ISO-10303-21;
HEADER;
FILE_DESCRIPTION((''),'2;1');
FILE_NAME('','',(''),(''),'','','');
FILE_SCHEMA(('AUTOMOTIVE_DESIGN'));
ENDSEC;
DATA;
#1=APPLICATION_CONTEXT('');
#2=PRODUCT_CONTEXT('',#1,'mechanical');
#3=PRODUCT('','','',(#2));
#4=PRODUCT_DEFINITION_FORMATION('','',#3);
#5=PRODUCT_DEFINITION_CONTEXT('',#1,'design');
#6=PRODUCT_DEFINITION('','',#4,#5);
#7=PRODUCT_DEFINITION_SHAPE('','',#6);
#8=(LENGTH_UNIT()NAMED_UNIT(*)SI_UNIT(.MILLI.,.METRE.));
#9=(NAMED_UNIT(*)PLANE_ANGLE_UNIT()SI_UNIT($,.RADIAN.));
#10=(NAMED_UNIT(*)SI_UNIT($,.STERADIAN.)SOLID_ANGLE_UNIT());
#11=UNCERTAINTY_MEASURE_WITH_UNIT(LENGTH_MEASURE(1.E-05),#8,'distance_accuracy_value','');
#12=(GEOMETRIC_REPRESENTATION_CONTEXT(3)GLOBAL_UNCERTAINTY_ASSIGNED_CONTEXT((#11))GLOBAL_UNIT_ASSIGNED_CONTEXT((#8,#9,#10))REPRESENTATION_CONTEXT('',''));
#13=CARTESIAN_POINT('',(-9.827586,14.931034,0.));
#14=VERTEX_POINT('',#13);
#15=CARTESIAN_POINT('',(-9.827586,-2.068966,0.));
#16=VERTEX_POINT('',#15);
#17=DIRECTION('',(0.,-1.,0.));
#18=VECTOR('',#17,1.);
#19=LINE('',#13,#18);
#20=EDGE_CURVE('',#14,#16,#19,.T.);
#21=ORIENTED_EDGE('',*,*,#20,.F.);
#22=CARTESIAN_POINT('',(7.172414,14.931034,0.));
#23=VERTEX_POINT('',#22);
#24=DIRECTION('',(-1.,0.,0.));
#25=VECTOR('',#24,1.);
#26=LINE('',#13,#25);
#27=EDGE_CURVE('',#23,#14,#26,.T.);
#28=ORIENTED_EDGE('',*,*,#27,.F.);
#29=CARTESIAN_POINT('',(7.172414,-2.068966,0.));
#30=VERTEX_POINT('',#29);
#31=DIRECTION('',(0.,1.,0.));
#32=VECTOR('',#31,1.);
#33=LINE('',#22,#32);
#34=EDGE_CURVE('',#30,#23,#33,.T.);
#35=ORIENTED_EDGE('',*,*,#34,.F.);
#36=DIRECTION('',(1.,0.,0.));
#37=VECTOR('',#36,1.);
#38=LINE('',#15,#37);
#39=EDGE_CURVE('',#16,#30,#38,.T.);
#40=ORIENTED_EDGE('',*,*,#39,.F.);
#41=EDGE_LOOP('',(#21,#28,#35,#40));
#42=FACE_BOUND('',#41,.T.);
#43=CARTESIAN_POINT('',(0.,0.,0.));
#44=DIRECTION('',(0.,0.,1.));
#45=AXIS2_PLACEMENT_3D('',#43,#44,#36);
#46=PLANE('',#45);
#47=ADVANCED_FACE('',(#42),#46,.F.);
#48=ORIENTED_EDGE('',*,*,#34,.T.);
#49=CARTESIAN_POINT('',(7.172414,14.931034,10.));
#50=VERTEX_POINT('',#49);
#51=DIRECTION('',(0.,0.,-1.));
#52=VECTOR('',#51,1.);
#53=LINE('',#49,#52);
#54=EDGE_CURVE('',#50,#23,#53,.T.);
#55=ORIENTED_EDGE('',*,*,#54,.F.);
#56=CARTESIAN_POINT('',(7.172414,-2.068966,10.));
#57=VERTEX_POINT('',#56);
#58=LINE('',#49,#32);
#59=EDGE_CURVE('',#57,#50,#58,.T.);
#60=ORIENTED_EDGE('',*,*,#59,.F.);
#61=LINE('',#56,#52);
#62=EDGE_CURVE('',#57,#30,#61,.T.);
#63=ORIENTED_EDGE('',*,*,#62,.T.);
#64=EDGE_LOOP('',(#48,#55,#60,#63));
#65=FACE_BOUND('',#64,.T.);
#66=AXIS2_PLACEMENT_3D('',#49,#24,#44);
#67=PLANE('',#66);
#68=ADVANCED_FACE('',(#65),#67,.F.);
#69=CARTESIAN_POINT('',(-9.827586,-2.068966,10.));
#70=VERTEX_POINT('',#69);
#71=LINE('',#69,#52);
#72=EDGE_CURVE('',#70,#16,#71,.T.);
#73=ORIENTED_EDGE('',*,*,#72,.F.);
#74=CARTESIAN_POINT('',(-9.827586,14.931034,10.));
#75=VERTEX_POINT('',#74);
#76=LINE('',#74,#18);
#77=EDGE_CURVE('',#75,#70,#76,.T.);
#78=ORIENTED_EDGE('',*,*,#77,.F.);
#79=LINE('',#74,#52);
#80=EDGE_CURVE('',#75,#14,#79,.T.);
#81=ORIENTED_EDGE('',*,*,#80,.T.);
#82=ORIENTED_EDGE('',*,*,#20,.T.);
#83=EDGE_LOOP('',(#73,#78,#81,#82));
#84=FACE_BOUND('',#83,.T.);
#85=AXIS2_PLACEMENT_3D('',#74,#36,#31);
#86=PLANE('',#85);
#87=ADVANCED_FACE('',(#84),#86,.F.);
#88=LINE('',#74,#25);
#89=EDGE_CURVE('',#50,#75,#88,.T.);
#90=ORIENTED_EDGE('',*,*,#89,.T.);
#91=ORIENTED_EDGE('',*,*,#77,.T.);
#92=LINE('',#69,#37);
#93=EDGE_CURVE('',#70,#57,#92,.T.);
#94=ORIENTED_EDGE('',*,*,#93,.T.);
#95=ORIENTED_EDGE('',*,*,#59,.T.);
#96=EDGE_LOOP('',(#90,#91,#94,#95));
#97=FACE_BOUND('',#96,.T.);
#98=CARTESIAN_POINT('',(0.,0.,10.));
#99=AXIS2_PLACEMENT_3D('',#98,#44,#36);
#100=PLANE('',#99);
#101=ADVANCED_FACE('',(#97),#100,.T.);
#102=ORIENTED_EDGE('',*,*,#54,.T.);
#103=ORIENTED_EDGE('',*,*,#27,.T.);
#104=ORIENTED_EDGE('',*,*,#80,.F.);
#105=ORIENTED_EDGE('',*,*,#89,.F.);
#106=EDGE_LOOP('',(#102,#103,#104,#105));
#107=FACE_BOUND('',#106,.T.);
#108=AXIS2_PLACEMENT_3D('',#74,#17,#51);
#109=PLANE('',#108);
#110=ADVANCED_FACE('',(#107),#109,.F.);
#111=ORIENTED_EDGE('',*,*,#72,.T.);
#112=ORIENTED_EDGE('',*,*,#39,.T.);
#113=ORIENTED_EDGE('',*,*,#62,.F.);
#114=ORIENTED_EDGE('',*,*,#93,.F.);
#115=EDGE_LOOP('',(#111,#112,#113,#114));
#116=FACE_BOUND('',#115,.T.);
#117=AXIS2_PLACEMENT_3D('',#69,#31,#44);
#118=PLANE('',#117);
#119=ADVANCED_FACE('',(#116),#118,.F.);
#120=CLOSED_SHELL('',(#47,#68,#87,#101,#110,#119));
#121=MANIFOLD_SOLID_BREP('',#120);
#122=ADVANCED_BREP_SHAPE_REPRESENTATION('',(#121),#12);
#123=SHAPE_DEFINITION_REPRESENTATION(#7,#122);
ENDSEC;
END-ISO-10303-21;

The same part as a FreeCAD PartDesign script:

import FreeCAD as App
import Part
import Sketcher

V = App.Vector
Q = App.Units.Quantity

doc = App.newDocument("Part")
body = doc.addObject("PartDesign::Body", "Body")

# Sketch on XY plane
sketch1 = body.newObject("Sketcher::SketchObject", "Sketch")
sketch1.AttachmentSupport = (doc.getObject("XY_Plane"), [""])
sketch1.MapMode = "FlatFace"
sketch1.addGeometry(Part.LineSegment(V(-10, 15, 0), V(-10, -2, 0)), False)
sketch1.addGeometry(Part.LineSegment(V(-10, -2, 0), V(7, -2, 0)), False)
sketch1.addGeometry(Part.LineSegment(V(7, -2, 0), V(7, 15, 0)), False)
sketch1.addGeometry(Part.LineSegment(V(7, 15, 0), V(-10, 15, 0)), False)
sketch1.addConstraint(Sketcher.Constraint("Coincident", 0, 2, 1, 1))
sketch1.addConstraint(Sketcher.Constraint("Coincident", 1, 2, 2, 1))
sketch1.addConstraint(Sketcher.Constraint("Coincident", 2, 2, 3, 1))
sketch1.addConstraint(Sketcher.Constraint("Coincident", 3, 2, 0, 1))
sketch1.addConstraint(Sketcher.Constraint("Vertical", 0))
sketch1.addConstraint(Sketcher.Constraint("Horizontal", 1))
sketch1.addConstraint(Sketcher.Constraint("Vertical", 2))
sketch1.addConstraint(Sketcher.Constraint("Horizontal", 3))
sketch1.addConstraint(Sketcher.Constraint("Equal", 3, 0))
sketch1.addConstraint(Sketcher.Constraint("DistanceX", 1, 1, 1, 2, Q("17 mm")))
sketch1.addConstraint(Sketcher.Constraint("DistanceX", 0, 2, -1, 1, Q("9.827586 mm")))
sketch1.addConstraint(Sketcher.Constraint("DistanceY", 0, 2, -1, 1, Q("2.068966 mm")))
pad1 = body.newObject("PartDesign::Pad", "Pad")
pad1.Profile = sketch1
pad1.Length = 10

doc.recompute()
